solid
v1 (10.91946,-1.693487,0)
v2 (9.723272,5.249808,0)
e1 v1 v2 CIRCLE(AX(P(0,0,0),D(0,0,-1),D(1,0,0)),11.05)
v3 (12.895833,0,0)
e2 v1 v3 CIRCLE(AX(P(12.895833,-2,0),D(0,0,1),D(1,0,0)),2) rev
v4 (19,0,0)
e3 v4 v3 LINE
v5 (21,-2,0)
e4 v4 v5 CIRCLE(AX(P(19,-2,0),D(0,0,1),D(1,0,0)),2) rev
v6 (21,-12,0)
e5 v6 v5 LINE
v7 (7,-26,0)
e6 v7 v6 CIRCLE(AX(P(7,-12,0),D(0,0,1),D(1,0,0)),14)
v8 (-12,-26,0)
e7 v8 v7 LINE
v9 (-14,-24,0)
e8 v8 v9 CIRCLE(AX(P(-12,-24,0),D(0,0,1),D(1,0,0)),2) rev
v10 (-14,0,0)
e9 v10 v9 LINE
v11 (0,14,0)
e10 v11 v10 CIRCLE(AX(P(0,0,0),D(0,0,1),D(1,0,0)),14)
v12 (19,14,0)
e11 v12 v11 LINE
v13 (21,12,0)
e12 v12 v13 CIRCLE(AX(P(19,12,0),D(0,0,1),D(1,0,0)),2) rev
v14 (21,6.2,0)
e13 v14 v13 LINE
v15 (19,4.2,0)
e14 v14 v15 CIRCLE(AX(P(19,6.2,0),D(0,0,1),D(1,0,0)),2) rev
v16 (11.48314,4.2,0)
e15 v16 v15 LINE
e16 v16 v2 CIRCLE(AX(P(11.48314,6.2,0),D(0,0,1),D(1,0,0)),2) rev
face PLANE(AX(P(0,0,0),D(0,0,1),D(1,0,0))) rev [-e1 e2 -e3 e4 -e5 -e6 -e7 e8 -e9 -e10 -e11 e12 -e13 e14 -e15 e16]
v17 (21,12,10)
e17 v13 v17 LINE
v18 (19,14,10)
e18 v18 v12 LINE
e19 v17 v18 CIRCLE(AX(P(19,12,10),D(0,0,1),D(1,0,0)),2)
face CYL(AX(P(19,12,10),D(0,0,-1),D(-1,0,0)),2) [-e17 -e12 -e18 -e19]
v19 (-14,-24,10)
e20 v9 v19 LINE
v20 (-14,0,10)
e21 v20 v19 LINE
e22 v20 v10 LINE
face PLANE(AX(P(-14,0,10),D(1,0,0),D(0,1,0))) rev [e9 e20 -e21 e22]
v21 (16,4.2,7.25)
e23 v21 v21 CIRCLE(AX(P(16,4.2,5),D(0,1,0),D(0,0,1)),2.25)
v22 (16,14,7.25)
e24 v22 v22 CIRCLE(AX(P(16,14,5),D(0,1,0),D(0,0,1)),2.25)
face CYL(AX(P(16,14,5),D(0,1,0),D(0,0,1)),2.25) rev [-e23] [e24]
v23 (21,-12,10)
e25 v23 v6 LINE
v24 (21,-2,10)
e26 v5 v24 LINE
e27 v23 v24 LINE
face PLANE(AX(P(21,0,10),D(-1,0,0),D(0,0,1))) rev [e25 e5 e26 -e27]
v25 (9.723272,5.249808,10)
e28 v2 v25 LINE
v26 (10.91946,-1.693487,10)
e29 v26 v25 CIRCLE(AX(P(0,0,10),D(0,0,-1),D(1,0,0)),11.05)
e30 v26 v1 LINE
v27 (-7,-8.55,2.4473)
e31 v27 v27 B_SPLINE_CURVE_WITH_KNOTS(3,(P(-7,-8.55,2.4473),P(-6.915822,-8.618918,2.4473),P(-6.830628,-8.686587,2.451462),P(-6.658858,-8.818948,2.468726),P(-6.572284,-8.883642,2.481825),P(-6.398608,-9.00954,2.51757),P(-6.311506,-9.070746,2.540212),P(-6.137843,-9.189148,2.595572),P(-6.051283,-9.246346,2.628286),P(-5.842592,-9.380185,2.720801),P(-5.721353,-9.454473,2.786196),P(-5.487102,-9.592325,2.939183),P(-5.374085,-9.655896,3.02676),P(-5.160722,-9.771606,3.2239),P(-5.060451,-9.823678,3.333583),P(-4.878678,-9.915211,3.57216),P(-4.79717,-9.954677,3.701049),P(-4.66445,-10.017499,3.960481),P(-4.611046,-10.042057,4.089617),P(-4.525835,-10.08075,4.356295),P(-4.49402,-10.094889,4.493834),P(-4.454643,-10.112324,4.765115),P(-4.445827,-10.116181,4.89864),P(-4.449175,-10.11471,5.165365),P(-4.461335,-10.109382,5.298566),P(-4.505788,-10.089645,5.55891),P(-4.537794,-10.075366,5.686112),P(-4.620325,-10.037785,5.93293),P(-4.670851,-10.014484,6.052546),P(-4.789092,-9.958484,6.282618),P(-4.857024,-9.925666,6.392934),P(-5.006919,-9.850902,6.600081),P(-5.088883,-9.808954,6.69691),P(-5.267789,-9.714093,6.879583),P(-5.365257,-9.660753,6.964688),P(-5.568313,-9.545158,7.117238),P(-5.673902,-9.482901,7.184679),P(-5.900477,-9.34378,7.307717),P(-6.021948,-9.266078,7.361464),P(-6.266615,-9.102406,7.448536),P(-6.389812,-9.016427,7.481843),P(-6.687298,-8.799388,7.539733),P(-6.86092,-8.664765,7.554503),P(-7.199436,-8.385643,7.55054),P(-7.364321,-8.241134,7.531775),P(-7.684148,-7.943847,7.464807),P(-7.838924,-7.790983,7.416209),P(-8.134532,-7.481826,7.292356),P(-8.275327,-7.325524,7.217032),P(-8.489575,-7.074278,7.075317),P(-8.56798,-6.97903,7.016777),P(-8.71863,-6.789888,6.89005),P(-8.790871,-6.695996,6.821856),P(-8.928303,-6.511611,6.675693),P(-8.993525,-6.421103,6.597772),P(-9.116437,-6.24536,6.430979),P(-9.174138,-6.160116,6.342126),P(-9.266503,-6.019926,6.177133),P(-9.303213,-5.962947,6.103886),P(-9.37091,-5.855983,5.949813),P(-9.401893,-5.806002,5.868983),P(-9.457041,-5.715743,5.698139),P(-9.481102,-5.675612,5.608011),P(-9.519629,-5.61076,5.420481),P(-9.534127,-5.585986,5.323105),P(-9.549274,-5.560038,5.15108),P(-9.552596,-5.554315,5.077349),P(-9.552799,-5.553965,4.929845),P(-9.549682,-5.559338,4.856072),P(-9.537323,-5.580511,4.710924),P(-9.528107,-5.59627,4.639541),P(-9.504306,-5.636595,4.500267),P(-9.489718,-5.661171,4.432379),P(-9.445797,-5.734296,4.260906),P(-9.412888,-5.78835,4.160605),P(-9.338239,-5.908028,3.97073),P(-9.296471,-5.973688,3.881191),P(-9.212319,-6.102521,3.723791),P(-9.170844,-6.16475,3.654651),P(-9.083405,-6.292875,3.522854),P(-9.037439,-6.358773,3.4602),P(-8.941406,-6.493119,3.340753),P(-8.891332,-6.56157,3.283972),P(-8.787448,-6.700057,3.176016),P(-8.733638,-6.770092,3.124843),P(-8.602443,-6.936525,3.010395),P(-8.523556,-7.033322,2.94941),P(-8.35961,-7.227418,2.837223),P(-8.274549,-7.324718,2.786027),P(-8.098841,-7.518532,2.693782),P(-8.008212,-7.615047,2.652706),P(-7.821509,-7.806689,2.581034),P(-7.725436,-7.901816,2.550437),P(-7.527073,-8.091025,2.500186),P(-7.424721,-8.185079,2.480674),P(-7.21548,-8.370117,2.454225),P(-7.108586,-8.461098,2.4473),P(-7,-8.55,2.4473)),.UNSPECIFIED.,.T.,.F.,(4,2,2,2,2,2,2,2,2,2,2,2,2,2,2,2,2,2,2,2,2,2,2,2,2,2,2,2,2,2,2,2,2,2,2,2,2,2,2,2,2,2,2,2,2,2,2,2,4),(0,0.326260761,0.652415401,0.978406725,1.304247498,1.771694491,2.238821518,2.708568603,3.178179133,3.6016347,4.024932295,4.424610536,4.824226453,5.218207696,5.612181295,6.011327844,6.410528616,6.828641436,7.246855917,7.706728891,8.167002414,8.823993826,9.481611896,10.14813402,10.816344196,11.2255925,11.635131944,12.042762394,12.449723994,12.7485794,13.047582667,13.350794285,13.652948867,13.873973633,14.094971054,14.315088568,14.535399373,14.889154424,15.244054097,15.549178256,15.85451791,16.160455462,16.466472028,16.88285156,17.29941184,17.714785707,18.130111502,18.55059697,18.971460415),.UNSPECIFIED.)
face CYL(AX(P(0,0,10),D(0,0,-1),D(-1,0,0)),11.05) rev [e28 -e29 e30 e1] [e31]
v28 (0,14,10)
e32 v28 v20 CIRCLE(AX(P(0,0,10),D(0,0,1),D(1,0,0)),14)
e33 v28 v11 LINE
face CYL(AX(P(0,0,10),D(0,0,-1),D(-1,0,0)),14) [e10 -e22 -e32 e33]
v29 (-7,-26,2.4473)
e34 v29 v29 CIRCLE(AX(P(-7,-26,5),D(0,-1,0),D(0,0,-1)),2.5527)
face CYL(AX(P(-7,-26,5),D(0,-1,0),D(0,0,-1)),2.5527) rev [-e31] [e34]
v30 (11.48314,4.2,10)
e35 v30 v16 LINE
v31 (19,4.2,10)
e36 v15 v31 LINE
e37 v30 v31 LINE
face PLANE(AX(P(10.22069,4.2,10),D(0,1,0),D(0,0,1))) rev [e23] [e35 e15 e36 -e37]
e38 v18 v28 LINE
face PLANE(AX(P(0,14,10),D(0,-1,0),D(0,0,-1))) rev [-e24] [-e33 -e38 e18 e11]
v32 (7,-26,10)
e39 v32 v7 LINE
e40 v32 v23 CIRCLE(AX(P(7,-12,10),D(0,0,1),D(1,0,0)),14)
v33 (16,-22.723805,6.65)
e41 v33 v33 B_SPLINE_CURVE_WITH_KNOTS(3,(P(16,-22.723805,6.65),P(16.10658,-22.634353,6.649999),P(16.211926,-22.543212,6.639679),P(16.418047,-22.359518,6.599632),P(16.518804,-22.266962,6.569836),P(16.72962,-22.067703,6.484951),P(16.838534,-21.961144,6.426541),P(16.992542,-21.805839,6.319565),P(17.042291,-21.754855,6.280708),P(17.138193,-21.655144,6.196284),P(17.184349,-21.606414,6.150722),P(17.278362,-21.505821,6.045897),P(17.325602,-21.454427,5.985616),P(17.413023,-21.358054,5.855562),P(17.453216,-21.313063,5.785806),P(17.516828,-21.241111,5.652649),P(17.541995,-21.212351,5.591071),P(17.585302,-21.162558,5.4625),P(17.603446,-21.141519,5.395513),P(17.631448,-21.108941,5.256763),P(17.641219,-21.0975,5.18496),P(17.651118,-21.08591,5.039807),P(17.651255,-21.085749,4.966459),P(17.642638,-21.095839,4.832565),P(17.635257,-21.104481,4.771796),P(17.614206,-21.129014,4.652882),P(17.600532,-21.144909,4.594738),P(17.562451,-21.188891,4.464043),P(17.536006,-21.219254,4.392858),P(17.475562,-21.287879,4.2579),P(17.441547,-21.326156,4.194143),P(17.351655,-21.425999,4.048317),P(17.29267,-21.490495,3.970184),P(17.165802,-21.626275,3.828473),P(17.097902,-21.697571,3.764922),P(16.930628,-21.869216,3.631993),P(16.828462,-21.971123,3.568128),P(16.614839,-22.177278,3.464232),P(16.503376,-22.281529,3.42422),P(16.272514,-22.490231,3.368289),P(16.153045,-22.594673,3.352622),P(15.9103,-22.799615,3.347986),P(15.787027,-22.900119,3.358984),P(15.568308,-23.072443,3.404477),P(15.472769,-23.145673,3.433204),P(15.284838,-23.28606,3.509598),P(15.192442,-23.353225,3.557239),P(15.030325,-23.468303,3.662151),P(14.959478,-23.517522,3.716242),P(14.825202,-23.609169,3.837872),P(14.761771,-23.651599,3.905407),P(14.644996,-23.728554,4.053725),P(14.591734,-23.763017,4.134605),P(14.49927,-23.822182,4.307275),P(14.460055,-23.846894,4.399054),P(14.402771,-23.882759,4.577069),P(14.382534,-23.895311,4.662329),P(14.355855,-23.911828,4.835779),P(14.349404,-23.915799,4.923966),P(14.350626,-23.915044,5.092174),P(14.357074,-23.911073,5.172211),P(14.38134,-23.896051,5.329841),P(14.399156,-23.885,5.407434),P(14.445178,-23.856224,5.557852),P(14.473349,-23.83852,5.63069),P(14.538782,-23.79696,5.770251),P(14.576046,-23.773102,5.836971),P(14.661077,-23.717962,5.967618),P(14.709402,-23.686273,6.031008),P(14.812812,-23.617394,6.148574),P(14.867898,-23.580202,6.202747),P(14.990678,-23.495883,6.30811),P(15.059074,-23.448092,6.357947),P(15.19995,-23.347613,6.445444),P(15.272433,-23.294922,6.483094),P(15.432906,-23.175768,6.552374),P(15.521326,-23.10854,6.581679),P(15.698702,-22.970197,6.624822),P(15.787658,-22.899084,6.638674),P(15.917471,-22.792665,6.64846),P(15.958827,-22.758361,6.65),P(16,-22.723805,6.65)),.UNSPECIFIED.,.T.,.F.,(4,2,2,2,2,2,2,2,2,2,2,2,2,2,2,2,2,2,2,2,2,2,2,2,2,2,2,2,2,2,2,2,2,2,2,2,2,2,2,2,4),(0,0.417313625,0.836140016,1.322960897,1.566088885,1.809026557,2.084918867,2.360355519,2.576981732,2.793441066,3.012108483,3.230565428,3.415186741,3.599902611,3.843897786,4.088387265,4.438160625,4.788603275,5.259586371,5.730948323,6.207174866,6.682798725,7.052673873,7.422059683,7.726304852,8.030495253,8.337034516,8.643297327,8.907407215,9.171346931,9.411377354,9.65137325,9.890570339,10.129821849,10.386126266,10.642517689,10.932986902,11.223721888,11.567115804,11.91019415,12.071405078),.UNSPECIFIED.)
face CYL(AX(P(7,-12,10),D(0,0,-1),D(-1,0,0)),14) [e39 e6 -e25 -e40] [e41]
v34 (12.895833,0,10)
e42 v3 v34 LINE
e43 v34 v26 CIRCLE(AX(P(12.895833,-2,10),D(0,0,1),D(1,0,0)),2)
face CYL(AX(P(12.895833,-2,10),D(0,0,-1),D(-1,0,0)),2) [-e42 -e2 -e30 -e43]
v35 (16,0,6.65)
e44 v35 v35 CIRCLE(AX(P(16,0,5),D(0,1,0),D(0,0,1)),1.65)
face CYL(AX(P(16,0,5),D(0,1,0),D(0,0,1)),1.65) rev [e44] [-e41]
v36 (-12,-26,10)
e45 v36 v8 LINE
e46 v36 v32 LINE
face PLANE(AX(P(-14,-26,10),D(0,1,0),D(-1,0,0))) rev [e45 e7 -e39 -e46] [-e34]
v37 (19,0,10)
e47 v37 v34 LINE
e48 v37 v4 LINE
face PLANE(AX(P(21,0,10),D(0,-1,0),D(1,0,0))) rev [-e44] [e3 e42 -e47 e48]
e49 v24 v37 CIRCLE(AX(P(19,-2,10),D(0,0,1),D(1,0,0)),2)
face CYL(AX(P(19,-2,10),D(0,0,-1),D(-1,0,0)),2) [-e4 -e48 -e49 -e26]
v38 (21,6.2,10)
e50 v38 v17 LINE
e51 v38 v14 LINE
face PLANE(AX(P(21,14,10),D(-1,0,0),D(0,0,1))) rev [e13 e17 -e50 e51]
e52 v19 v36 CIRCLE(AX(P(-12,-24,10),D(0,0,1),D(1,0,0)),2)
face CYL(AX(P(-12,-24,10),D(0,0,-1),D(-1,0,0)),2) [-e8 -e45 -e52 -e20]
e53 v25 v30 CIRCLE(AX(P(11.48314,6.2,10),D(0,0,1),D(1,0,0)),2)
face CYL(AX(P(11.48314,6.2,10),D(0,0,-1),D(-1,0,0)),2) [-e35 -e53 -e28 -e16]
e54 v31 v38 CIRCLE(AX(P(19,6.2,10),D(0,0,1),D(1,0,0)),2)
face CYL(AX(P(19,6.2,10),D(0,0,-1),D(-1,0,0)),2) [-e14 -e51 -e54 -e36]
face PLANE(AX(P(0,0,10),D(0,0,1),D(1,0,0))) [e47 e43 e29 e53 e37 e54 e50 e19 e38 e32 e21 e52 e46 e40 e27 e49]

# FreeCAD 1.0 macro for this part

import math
import FreeCAD as App
import Part
import Sketcher
from FreeCAD import Vector
Q = App.Units.Quantity


def edges_at(feature, points):
    """Names of the edges that pass closest to the given points."""
    edges = feature.Shape.Edges
    near = lambda p: min(range(len(edges)), key=lambda i: edges[i].distToShape(Part.Vertex(*p))[0])
    return sorted({f"Edge{near(p) + 1}" for p in points})

doc = App.newDocument("Part")
body = doc.addObject("PartDesign::Body", "Body")

sketch1 = body.newObject("Sketcher::SketchObject", "Sketch")
sketch1.AttachmentSupport = (doc.getObject("XY_Plane"), [""])
sketch1.MapMode = "FlatFace"
sketch1.addGeometry([
    Part.LineSegment(Vector(10.2, 4.2, 0), Vector(21, 4.2, 0)),
    Part.LineSegment(Vector(21, 4.2, 0), Vector(21, 14, 0)),
    Part.LineSegment(Vector(21, 14, 0), Vector(0, 14, 0)),
    Part.ArcOfCircle(Part.Circle(Vector(0, 0, 0), Vector(0, 0, 1), 14), math.radians(90), math.radians(180)),
    Part.LineSegment(Vector(-14, 0, 0), Vector(-14, -26, 0)),
    Part.LineSegment(Vector(-14, -26, 0), Vector(7, -26, 0)),
    Part.ArcOfCircle(Part.Circle(Vector(7, -12, 0), Vector(0, 0, 1), 14), math.radians(-90), math.radians(0)),
    Part.LineSegment(Vector(21, -12, 0), Vector(21, 0, 0)),
    Part.LineSegment(Vector(21, 0, 0), Vector(11.1, 0, 0)),
    Part.ArcOfCircle(Part.Circle(Vector(0, 0, 0), Vector(0, 0, 1), 11.1), math.radians(22), math.radians(360)),
], False)
sketch1.addConstraint([
    Sketcher.Constraint("Coincident", 0, 2, 1, 1),
    Sketcher.Constraint("Coincident", 1, 2, 2, 1),
    Sketcher.Constraint("Tangent", 2, 2, 3, 1),
    Sketcher.Constraint("Tangent", 3, 2, 4, 1),
    Sketcher.Constraint("Coincident", 4, 2, 5, 1),
    Sketcher.Constraint("Tangent", 5, 2, 6, 1),
    Sketcher.Constraint("Tangent", 6, 2, 7, 1),
    Sketcher.Constraint("Coincident", 7, 2, 8, 1),
    Sketcher.Constraint("Coincident", 8, 2, 9, 2),
    Sketcher.Constraint("Coincident", 9, 1, 0, 1),
    Sketcher.Constraint("Horizontal", 0),
    Sketcher.Constraint("Vertical", 1),
    Sketcher.Constraint("Horizontal", 2),
    Sketcher.Constraint("Vertical", 4),
    Sketcher.Constraint("Horizontal", 5),
    Sketcher.Constraint("Vertical", 7),
    Sketcher.Constraint("Horizontal", 8),
    Sketcher.Constraint("Coincident", 3, 3, -1, 1),
    Sketcher.Constraint("Coincident", 9, 3, -1, 1),
    Sketcher.Constraint("Equal", 3, 6),
    Sketcher.Constraint("PointOnObject", 7, 2, -1),
    Sketcher.Constraint("Vertical", 1, 2, 6, 2),
    Sketcher.Constraint("Radius", 3, Q("14 mm")),
    Sketcher.Constraint("DistanceX", 2, 2, 2, 1, Q("21 mm")),
    Sketcher.Constraint("DistanceY", 4, 2, 4, 1, Q("26 mm")),
    Sketcher.Constraint("Radius", 9, Q("11.05 mm")),
    Sketcher.Constraint("DistanceY", 1, 1, 1, 2, Q("9.8 mm")),
])
pad1 = body.newObject("PartDesign::Pad", "Pad")
pad1.Profile = sketch1
pad1.Length = 10

sketch2 = body.newObject("Sketcher::SketchObject", "Sketch001")
sketch2.AttachmentSupport = (doc.getObject("XZ_Plane"), [""])
sketch2.MapMode = "FlatFace"
sketch2.AttachmentOffset = App.Placement(Vector(0, 0, -14), App.Rotation())
sketch2.addGeometry(Part.Circle(Vector(16, 5, 0), Vector(0, 0, 1), 2.2), False)
sketch2.addConstraint([
    Sketcher.Constraint("Diameter", 0, Q("4.5 mm")),
    Sketcher.Constraint("DistanceX", -1, 1, 0, 3, Q("16 mm")),
    Sketcher.Constraint("DistanceY", -1, 1, 0, 3, Q("5 mm")),
])
doc.recompute()
hole = body.newObject("PartDesign::Hole", "Hole")
hole.Profile = sketch2
hole.ThreadType = "None"
hole.Diameter = 4.5
hole.DepthType = "Dimension"
hole.Depth = 9.8
hole.DrillPoint = "Flat"
hole.Reversed = True

sketch3 = body.newObject("Sketcher::SketchObject", "Sketch002")
sketch3.AttachmentSupport = (doc.getObject("XZ_Plane"), [""])
sketch3.MapMode = "FlatFace"
sketch3.addGeometry(Part.Circle(Vector(16, 5, 0), Vector(0, 0, 1), 1.6), False)
sketch3.addConstraint([
    Sketcher.Constraint("Diameter", 0, Q("3.3 mm")),
    Sketcher.Constraint("DistanceX", -1, 1, 0, 3, Q("16 mm")),
    Sketcher.Constraint("DistanceY", -1, 1, 0, 3, Q("5 mm")),
])
doc.recompute()
hole2 = body.newObject("PartDesign::Hole", "Hole001")
hole2.Profile = sketch3
hole2.ThreadType = "None"
hole2.Diameter = 3.3
hole2.DepthType = "ThroughAll"
hole2.Reversed = True

sketch4 = body.newObject("Sketcher::SketchObject", "Sketch003")
sketch4.AttachmentSupport = (doc.getObject("XZ_Plane"), [""])
sketch4.MapMode = "FlatFace"
sketch4.AttachmentOffset = App.Placement(Vector(0, 0, 26), App.Rotation())
sketch4.addGeometry(Part.Circle(Vector(-7, 5, 0), Vector(0, 0, 1), 2.6), False)
sketch4.addConstraint([
    Sketcher.Constraint("DistanceX", 0, 3, -1, 1, Q("7 mm")),
    Sketcher.Constraint("DistanceY", -1, 1, 0, 3, Q("5 mm")),
    Sketcher.Constraint("Diameter", 0, Q("5.1054 mm")),
])
pocket1 = body.newObject("PartDesign::Pocket", "Pocket")
pocket1.Profile = sketch4
pocket1.Type = "UpToFirst"
doc.recompute()

fillet = body.newObject("PartDesign::Fillet", "Fillet")
fillet.Base = (pocket1, edges_at(pocket1, [
    (11.05, 0, 5),
    (21, 0, 5),
    (-14, -26, 5),
    (21, 14, 5),
    (21, 4.2, 5),
    (10.221, 4.2, 5),
]))
fillet.Radius = 2

doc.recompute()
